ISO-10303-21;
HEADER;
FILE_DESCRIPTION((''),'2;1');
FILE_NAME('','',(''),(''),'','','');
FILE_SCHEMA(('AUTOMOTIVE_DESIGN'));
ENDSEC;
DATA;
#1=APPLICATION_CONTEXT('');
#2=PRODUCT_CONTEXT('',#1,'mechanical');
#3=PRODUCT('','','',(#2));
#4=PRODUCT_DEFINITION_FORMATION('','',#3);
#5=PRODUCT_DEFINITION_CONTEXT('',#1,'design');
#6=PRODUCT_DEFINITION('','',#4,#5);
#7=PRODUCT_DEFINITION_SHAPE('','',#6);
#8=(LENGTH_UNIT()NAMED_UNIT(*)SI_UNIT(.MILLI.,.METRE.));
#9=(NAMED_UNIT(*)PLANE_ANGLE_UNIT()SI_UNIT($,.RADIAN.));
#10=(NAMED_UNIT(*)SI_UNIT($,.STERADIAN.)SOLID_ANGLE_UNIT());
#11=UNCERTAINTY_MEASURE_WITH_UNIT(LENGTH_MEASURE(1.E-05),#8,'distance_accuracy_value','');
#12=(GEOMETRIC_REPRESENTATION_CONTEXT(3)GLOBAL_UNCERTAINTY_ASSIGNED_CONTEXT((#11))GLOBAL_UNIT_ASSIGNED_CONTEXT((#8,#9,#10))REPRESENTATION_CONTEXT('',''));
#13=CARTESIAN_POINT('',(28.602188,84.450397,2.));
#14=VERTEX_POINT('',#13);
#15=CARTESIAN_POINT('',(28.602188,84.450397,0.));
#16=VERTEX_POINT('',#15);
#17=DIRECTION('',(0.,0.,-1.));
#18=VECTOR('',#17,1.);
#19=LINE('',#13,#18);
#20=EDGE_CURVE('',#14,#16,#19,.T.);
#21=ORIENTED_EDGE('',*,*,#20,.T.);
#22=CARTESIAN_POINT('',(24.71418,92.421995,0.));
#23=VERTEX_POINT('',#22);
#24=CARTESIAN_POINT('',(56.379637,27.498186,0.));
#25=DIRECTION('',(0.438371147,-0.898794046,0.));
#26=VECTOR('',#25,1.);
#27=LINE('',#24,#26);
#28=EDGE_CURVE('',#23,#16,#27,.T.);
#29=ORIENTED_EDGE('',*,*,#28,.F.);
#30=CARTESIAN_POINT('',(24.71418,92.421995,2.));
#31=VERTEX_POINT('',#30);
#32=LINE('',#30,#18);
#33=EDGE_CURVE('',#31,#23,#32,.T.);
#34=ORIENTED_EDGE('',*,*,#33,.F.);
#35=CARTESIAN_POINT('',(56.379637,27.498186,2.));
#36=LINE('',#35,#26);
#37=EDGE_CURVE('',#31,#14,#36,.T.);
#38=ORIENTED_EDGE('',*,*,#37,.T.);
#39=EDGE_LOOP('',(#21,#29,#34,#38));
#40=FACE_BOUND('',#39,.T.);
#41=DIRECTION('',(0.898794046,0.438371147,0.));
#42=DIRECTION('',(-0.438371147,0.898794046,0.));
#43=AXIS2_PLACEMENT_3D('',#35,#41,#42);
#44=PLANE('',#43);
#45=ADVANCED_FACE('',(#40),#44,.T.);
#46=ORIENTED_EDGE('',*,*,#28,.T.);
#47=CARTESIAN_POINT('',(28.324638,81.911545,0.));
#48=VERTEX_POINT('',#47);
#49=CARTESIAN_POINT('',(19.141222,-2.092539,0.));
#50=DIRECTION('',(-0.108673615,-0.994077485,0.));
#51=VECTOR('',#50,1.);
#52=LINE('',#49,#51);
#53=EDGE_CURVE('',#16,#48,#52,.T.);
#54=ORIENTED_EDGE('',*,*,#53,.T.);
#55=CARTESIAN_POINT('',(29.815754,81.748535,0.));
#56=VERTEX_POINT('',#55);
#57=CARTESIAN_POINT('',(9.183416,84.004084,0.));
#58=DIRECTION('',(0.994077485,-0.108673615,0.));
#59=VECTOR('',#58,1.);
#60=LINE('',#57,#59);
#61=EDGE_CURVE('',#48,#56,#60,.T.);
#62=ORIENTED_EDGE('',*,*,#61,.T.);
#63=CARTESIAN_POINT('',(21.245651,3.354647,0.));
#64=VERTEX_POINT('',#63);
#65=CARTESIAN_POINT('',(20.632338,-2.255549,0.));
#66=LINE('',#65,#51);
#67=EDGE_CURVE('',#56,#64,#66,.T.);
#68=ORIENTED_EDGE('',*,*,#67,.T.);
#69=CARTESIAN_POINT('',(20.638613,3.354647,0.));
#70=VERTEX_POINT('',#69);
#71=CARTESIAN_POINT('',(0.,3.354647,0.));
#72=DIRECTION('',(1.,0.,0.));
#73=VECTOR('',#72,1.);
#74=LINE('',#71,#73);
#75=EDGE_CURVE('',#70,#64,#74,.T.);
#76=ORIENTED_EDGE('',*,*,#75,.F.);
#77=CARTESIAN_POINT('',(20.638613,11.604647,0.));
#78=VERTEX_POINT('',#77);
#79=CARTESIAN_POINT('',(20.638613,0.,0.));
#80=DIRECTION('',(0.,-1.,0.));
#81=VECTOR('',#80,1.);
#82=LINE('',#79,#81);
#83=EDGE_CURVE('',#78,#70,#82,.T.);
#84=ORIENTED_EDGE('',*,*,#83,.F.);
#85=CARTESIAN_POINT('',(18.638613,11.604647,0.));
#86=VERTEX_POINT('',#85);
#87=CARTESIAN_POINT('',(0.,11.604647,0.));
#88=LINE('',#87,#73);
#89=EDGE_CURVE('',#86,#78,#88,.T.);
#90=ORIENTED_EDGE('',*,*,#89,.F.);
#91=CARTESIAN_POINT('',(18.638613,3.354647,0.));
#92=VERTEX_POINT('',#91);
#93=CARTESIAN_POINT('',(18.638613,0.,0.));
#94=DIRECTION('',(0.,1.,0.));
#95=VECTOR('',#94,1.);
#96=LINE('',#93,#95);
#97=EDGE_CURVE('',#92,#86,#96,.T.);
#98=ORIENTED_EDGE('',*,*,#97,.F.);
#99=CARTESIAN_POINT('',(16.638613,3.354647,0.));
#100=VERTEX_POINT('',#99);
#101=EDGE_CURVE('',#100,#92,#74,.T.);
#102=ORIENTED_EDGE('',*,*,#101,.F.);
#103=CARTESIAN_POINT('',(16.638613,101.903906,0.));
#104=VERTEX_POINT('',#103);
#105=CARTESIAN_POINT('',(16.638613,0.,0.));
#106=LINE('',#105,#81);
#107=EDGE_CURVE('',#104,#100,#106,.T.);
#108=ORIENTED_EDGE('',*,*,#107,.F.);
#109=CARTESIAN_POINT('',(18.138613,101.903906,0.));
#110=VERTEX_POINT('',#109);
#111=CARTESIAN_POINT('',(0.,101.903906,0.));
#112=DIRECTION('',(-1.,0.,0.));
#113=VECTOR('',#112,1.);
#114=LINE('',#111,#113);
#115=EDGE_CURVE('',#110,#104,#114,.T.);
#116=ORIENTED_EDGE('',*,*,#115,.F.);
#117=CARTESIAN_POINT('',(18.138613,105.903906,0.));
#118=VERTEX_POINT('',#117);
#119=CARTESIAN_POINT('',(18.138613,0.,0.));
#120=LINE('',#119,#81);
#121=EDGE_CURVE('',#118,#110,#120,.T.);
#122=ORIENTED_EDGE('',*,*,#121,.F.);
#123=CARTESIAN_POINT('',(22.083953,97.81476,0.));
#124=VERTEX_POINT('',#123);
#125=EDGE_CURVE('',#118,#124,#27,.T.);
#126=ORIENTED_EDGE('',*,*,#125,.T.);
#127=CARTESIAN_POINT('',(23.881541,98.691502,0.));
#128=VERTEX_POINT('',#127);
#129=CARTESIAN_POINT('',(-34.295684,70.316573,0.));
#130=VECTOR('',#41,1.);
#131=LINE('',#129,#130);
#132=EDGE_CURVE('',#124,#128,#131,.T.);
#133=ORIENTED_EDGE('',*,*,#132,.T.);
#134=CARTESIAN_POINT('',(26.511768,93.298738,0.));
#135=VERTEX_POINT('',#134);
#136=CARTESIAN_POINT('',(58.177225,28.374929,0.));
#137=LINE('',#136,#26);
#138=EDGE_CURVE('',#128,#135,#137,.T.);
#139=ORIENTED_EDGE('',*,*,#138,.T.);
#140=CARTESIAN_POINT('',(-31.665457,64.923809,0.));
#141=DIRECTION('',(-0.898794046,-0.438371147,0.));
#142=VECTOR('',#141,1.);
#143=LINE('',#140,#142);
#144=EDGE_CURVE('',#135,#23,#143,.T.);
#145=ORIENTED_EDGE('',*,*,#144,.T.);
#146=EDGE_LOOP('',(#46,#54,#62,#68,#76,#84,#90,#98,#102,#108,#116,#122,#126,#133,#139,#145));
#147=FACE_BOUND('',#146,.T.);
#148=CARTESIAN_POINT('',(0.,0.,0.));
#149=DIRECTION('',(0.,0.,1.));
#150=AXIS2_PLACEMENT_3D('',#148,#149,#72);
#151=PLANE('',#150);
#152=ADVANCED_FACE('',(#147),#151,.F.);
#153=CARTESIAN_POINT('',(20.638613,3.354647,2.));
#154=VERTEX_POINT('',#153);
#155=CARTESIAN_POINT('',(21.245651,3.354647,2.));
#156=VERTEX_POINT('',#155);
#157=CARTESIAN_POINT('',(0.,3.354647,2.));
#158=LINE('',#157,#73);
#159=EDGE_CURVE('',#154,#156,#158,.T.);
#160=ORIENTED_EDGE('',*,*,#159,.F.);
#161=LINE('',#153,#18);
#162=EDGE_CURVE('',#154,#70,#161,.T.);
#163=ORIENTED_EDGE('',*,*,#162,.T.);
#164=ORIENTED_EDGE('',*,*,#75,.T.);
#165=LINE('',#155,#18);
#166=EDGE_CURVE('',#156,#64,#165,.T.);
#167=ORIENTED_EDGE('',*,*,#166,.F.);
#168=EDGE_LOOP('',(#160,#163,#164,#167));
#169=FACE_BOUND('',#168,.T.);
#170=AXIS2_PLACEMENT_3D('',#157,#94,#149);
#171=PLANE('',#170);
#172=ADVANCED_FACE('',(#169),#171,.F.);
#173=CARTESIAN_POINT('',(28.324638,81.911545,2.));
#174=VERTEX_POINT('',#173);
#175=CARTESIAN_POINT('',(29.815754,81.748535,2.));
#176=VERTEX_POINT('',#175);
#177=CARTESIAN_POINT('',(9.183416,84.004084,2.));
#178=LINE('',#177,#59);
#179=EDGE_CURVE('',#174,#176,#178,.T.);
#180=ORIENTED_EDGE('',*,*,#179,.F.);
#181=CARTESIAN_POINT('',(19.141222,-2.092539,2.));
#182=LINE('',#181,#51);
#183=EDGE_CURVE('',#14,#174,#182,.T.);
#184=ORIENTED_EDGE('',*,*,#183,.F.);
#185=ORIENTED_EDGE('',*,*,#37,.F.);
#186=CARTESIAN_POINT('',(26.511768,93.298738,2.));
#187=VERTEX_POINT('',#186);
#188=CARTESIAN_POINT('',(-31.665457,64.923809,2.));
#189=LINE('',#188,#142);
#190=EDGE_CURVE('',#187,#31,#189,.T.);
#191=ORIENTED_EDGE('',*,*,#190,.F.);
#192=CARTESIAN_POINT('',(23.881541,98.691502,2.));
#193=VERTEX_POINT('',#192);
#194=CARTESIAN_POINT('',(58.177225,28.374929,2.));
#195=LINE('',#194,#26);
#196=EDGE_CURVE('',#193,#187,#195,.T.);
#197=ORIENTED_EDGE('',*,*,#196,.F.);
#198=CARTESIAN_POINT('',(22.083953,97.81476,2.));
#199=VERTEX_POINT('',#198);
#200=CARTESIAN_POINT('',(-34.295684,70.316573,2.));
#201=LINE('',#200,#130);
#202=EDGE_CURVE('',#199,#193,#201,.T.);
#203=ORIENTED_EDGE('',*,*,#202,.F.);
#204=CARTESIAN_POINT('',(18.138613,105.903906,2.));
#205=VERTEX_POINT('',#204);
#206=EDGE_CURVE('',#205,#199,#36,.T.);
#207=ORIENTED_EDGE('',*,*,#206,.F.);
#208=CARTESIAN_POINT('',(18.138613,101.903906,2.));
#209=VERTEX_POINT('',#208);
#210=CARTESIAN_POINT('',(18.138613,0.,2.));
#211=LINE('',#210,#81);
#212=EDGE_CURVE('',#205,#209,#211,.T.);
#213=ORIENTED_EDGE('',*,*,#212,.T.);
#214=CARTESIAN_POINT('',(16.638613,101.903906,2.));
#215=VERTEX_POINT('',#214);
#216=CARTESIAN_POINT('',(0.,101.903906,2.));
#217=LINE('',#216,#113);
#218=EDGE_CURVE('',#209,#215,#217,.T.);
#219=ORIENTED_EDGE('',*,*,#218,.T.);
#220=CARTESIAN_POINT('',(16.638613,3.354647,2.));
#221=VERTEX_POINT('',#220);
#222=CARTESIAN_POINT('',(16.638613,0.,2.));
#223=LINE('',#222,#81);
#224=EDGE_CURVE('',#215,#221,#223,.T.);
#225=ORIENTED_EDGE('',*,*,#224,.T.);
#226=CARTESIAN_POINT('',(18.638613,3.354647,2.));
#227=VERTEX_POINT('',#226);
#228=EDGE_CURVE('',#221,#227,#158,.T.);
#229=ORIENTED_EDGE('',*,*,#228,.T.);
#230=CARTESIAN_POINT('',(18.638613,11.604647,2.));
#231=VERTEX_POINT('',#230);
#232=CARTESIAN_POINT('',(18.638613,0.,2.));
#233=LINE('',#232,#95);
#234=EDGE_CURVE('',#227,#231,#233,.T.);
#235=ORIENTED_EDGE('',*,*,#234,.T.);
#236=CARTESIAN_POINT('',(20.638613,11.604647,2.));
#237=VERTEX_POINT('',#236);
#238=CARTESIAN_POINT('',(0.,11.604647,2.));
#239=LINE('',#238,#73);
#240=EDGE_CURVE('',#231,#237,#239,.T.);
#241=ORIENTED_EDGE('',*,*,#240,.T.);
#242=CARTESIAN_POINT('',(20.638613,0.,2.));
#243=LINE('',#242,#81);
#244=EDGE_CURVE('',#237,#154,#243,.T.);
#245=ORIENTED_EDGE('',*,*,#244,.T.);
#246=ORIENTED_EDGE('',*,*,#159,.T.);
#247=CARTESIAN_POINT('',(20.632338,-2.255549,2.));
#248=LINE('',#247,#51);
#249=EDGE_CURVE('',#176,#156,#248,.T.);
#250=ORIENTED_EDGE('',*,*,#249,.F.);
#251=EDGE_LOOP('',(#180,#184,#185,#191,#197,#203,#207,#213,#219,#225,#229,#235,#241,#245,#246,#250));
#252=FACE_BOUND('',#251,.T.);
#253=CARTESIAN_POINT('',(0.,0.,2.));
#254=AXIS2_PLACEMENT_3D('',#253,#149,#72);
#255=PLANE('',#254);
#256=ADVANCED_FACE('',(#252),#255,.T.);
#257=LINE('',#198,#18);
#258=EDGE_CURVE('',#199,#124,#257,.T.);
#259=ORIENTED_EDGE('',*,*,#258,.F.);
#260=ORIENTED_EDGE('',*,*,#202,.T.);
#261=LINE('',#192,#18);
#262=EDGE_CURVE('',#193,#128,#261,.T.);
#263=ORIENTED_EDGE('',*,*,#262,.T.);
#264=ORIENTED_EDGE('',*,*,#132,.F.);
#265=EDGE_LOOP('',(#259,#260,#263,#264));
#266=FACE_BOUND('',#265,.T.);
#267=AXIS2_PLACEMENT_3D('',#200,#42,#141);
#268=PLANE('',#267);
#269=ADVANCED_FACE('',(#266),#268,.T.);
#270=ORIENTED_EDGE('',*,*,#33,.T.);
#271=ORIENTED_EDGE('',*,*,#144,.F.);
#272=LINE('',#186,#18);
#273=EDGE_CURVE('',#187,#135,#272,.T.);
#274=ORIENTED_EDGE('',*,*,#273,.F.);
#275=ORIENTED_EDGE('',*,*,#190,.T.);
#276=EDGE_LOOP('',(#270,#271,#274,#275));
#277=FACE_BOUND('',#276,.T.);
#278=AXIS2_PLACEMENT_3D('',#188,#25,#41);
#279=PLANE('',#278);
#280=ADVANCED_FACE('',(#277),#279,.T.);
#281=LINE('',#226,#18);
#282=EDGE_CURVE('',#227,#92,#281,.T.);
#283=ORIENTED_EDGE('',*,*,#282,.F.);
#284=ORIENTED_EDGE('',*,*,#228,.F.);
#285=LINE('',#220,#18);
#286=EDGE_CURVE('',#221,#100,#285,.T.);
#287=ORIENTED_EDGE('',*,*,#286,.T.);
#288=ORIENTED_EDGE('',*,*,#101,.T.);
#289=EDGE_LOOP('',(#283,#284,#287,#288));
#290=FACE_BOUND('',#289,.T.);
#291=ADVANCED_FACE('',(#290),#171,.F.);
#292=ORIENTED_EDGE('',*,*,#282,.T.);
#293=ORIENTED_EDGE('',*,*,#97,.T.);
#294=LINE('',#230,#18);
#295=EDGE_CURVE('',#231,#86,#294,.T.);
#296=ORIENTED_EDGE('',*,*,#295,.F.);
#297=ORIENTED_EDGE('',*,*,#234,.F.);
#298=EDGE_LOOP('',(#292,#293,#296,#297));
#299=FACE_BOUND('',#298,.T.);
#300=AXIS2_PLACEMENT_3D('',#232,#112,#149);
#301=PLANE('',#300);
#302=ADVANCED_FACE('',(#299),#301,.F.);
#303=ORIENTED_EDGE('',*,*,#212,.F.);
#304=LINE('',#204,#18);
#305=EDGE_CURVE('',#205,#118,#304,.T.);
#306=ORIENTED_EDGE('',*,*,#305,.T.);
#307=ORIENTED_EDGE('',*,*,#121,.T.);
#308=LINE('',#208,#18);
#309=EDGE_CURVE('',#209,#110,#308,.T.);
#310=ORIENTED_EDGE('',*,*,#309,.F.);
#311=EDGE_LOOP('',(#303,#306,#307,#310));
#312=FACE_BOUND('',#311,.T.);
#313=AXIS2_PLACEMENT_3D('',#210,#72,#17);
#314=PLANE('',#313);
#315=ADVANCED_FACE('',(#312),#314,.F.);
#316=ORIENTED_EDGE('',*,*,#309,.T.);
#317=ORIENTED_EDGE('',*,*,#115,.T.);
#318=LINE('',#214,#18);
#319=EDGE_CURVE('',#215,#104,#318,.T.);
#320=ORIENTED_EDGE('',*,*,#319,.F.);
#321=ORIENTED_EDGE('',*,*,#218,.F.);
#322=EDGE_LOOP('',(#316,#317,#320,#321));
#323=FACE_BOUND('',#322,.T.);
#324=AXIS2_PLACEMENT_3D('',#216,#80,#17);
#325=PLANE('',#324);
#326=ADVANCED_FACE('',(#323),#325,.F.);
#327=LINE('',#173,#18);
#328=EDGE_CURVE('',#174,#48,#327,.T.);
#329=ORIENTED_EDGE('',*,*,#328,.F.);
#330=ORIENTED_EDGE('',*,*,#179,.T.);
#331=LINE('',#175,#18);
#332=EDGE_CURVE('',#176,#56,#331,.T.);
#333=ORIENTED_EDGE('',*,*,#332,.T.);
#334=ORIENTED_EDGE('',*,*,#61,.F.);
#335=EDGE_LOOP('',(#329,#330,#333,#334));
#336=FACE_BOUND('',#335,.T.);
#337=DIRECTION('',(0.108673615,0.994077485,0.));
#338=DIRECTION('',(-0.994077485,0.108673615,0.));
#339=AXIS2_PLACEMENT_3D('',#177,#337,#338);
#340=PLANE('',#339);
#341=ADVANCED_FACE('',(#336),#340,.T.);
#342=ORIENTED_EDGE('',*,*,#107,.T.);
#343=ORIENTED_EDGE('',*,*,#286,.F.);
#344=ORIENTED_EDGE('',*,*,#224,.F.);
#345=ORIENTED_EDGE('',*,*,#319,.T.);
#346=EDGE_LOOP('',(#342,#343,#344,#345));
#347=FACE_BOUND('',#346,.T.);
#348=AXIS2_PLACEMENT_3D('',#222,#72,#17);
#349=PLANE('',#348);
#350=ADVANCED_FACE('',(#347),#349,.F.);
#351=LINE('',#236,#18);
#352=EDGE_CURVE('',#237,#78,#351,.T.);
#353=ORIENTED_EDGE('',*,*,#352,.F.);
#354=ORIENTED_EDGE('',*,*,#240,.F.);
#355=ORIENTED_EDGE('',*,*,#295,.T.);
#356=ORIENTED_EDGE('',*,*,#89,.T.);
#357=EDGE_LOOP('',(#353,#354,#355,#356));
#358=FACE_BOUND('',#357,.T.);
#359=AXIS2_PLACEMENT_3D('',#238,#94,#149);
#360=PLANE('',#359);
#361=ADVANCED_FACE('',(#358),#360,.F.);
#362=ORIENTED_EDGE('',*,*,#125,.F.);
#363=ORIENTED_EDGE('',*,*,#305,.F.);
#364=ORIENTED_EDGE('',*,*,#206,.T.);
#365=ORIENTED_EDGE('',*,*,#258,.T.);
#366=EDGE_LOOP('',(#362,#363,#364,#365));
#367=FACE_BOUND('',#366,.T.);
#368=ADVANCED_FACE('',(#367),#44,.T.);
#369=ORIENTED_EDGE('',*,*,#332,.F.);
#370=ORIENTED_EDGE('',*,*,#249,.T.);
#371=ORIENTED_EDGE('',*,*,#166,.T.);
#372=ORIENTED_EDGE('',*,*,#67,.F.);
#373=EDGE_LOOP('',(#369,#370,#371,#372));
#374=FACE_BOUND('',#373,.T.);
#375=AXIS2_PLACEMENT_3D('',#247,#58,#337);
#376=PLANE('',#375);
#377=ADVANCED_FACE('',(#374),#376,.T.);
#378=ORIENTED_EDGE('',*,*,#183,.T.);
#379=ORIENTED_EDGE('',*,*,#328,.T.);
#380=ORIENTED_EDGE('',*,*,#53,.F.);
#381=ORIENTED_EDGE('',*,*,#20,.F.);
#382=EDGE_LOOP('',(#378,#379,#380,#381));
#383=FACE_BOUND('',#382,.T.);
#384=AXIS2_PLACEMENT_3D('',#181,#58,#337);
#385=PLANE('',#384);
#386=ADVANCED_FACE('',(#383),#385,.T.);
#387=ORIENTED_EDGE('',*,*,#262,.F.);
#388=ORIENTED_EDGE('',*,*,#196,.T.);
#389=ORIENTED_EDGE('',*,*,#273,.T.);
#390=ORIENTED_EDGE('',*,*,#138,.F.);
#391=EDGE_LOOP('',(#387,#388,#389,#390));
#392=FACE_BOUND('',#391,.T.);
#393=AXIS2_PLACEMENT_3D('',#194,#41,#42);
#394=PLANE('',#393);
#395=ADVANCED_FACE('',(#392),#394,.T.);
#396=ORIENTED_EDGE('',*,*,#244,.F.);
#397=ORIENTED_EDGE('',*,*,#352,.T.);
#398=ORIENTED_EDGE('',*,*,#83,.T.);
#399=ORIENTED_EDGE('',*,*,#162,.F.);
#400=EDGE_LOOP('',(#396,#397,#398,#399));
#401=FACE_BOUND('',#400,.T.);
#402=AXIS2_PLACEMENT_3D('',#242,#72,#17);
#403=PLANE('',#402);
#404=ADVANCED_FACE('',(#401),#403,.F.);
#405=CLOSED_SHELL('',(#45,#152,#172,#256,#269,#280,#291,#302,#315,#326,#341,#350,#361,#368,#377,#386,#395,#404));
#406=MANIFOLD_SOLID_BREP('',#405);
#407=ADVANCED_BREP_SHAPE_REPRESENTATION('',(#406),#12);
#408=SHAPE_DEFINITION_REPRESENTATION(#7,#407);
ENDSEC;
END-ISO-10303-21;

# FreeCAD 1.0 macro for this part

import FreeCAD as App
import Part
import Sketcher
Q = App.Units.Quantity

doc = App.newDocument("Part")
body = doc.addObject("PartDesign::Body", "Body")

# Sketch on XY plane
sketch1 = doc.addObject("Sketcher::SketchObject", "Sketch")
body.addObject(sketch1)
sketch1.AttachmentSupport = (doc.XY_Plane, [""])
sketch1.MapMode = "FlatFace"
sketch1.addGeometry(Part.LineSegment(App.Vector(29.8, 81.7, 0), App.Vector(28.3, 81.9, 0)), False)
sketch1.addGeometry(Part.LineSegment(App.Vector(28.3, 81.9, 0), App.Vector(28.6, 84.5, 0)), False)
sketch1.addGeometry(Part.LineSegment(App.Vector(28.6, 84.5, 0), App.Vector(24.7, 92.4, 0)), False)
sketch1.addGeometry(Part.LineSegment(App.Vector(24.7, 92.4, 0), App.Vector(26.5, 93.3, 0)), False)
sketch1.addGeometry(Part.LineSegment(App.Vector(26.5, 93.3, 0), App.Vector(23.9, 98.7, 0)), False)
sketch1.addGeometry(Part.LineSegment(App.Vector(23.9, 98.7, 0), App.Vector(22.1, 97.8, 0)), False)
sketch1.addGeometry(Part.LineSegment(App.Vector(22.1, 97.8, 0), App.Vector(18.1, 105.9, 0)), False)
sketch1.addGeometry(Part.LineSegment(App.Vector(18.1, 105.9, 0), App.Vector(18.1, 101.9, 0)), False)
sketch1.addGeometry(Part.LineSegment(App.Vector(18.1, 101.9, 0), App.Vector(16.6, 101.9, 0)), False)
sketch1.addGeometry(Part.LineSegment(App.Vector(16.6, 101.9, 0), App.Vector(16.6, 3.4, 0)), False)
sketch1.addGeometry(Part.LineSegment(App.Vector(16.6, 3.4, 0), App.Vector(18.6, 3.4, 0)), False)
sketch1.addGeometry(Part.LineSegment(App.Vector(18.6, 3.4, 0), App.Vector(18.6, 11.6, 0)), False)
sketch1.addGeometry(Part.LineSegment(App.Vector(18.6, 11.6, 0), App.Vector(20.6, 11.6, 0)), False)
sketch1.addGeometry(Part.LineSegment(App.Vector(20.6, 11.6, 0), App.Vector(20.6, 3.4, 0)), False)
sketch1.addGeometry(Part.LineSegment(App.Vector(20.6, 3.4, 0), App.Vector(21.2, 3.4, 0)), False)
sketch1.addGeometry(Part.LineSegment(App.Vector(21.2, 3.4, 0), App.Vector(29.8, 81.7, 0)), False)
sketch1.addConstraint(Sketcher.Constraint("Coincident", 0, 2, 1, 1))
sketch1.addConstraint(Sketcher.Constraint("Coincident", 1, 2, 2, 1))
sketch1.addConstraint(Sketcher.Constraint("Coincident", 2, 2, 3, 1))
sketch1.addConstraint(Sketcher.Constraint("Coincident", 3, 2, 4, 1))
sketch1.addConstraint(Sketcher.Constraint("Coincident", 4, 2, 5, 1))
sketch1.addConstraint(Sketcher.Constraint("Coincident", 5, 2, 6, 1))
sketch1.addConstraint(Sketcher.Constraint("Coincident", 6, 2, 7, 1))
sketch1.addConstraint(Sketcher.Constraint("Coincident", 7, 2, 8, 1))
sketch1.addConstraint(Sketcher.Constraint("Coincident", 8, 2, 9, 1))
sketch1.addConstraint(Sketcher.Constraint("Coincident", 9, 2, 10, 1))
sketch1.addConstraint(Sketcher.Constraint("Coincident", 10, 2, 11, 1))
sketch1.addConstraint(Sketcher.Constraint("Coincident", 11, 2, 12, 1))
sketch1.addConstraint(Sketcher.Constraint("Coincident", 12, 2, 13, 1))
sketch1.addConstraint(Sketcher.Constraint("Coincident", 13, 2, 14, 1))
sketch1.addConstraint(Sketcher.Constraint("Coincident", 14, 2, 15, 1))
sketch1.addConstraint(Sketcher.Constraint("Coincident", 15, 2, 0, 1))
sketch1.addConstraint(Sketcher.Constraint("Vertical", 7))
sketch1.addConstraint(Sketcher.Constraint("Horizontal", 8))
sketch1.addConstraint(Sketcher.Constraint("Vertical", 9))
sketch1.addConstraint(Sketcher.Constraint("Horizontal", 10))
sketch1.addConstraint(Sketcher.Constraint("Vertical", 11))
sketch1.addConstraint(Sketcher.Constraint("Horizontal", 12))
sketch1.addConstraint(Sketcher.Constraint("Vertical", 13))
sketch1.addConstraint(Sketcher.Constraint("Horizontal", 14))
sketch1.addConstraint(Sketcher.Constraint("Perpendicular", 0, 1))
sketch1.addConstraint(Sketcher.Constraint("Perpendicular", 2, 3))
sketch1.addConstraint(Sketcher.Constraint("Perpendicular", 3, 4))
sketch1.addConstraint(Sketcher.Constraint("Perpendicular", 4, 5))
sketch1.addConstraint(Sketcher.Constraint("Perpendicular", 5, 6))
sketch1.addConstraint(Sketcher.Constraint("Parallel", 1, 15))
sketch1.addConstraint(Sketcher.Constraint("Horizontal", 10, 2, 13, 2))
sketch1.addConstraint(Sketcher.Constraint("Equal", 10, 12))
sketch1.addConstraint(Sketcher.Constraint("Equal", 3, 5))
sketch1.addConstraint(Sketcher.Constraint("DistanceX", 10, 1, 10, 2, 2.0))
sketch1.addConstraint(Sketcher.Constraint("DistanceY", 7, 2, 7, 1, 4.0))
sketch1.addConstraint(Sketcher.Constraint("Angle", 2, Q("116 deg")))
sketch1.addConstraint(Sketcher.Constraint("Distance", 3, 2.0))
sketch1.addConstraint(Sketcher.Constraint("Distance", 4, 6.0))
sketch1.addConstraint(Sketcher.Constraint("Distance", 6, 9.0))
sketch1.addConstraint(Sketcher.Constraint("DistanceX", 8, 2, 8, 1, 1.5))
sketch1.addConstraint(Sketcher.Constraint("Distance", 0, 1.5))
sketch1.addConstraint(Sketcher.Constraint("DistanceY", 11, 1, 11, 2, 8.25))
sketch1.addConstraint(Sketcher.Constraint("DistanceY", 9, 2, 9, 1, 98.549259))
sketch1.addConstraint(Sketcher.Constraint("DistanceY", -1, 1, 4, 2, 98.691502))
sketch1.addConstraint(Sketcher.Constraint("DistanceY", 1, 2, 2, 2, 7.971598))
sketch1.addConstraint(Sketcher.Constraint("DistanceX", 5, 2, 15, 2, 7.731801))
sketch1.addConstraint(Sketcher.Constraint("Distance", 1, 2.553978))
sketch1.addConstraint(Sketcher.Constraint("DistanceX", -1, 1, 0, 2, 28.324638))
pad1 = doc.addObject("PartDesign::Pad", "Pad")
body.addObject(pad1)
pad1.Profile = sketch1
pad1.Length = 2

doc.recompute()
